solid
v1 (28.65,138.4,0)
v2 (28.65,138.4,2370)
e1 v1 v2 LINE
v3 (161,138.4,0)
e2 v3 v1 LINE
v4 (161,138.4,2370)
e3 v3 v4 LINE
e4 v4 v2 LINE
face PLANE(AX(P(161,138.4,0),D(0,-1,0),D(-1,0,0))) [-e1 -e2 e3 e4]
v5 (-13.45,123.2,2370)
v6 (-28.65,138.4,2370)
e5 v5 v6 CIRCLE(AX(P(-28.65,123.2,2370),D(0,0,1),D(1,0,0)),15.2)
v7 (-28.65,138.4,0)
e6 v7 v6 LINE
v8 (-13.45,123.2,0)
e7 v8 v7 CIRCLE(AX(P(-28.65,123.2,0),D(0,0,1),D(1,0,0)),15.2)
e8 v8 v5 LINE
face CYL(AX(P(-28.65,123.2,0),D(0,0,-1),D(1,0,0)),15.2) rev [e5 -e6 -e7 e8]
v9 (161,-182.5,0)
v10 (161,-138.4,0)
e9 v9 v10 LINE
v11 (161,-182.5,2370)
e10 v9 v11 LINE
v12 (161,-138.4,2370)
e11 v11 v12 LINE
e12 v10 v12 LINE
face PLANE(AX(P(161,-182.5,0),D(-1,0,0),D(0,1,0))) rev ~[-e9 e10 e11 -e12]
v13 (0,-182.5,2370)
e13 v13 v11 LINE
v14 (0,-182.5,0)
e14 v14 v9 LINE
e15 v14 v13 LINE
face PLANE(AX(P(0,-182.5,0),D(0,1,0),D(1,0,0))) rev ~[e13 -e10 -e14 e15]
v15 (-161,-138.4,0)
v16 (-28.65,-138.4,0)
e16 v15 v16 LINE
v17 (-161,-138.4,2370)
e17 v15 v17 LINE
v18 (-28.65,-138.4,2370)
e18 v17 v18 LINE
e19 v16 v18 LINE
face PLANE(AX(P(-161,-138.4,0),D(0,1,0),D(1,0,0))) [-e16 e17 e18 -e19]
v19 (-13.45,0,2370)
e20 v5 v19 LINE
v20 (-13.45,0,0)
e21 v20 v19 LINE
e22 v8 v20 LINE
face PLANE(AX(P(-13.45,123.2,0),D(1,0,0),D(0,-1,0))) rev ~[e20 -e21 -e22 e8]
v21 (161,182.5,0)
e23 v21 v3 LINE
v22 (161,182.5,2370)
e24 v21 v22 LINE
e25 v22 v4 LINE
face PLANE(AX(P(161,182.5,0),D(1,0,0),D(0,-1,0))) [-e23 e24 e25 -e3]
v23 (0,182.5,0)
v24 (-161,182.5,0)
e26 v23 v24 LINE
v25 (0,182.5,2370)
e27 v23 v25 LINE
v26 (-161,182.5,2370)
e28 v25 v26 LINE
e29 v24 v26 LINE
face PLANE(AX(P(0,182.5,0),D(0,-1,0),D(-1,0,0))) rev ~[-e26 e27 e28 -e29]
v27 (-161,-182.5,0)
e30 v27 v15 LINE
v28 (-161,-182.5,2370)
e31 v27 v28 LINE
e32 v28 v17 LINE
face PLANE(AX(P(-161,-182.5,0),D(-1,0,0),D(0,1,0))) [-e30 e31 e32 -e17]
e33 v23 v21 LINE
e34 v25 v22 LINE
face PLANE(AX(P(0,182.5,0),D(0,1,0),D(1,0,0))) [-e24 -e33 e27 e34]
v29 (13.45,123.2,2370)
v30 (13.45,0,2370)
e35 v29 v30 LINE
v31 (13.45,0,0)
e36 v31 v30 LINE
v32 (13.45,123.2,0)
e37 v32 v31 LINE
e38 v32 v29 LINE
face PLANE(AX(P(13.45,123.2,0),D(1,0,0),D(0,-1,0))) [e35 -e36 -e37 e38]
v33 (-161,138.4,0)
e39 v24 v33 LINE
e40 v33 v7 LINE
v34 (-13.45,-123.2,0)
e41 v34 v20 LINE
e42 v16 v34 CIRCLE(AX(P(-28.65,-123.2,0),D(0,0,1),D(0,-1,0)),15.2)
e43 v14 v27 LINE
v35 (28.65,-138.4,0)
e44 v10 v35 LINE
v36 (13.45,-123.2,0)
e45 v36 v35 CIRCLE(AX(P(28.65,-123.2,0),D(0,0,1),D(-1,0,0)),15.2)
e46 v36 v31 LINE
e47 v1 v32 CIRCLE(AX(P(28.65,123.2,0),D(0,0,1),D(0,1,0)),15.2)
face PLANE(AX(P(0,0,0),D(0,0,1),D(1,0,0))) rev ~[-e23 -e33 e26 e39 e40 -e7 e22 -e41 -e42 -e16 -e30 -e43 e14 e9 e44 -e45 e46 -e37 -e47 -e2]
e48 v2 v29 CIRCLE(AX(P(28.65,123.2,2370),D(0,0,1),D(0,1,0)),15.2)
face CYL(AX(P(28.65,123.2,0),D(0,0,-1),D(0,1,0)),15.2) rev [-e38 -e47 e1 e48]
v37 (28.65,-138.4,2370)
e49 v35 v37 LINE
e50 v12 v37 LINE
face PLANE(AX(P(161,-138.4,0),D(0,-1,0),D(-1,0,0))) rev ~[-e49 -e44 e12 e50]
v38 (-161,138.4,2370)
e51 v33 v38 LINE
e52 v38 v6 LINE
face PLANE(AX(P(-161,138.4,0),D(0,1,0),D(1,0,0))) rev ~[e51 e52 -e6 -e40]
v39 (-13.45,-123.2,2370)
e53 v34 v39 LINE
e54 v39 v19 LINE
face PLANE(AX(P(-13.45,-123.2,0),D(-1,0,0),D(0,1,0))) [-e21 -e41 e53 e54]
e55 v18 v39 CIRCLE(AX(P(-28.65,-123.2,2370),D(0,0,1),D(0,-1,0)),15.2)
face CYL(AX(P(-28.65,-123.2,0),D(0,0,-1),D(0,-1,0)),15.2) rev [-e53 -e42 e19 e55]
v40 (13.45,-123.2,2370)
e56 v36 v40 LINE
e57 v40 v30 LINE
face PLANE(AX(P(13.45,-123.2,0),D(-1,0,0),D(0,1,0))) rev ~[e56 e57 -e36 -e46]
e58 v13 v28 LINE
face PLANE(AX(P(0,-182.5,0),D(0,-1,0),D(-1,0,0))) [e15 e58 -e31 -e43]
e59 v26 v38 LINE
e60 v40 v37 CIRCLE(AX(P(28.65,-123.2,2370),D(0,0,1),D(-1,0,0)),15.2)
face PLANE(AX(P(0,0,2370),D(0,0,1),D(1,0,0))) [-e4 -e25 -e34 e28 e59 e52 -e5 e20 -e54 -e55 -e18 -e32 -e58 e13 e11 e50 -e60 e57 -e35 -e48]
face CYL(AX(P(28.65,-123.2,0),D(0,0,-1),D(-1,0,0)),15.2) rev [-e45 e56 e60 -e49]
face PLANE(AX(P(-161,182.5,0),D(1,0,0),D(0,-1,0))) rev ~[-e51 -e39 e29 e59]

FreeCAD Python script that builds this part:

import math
import FreeCAD as App
import Part
import Sketcher
from FreeCAD import Vector

doc = App.newDocument("Part")
body = doc.addObject("PartDesign::Body", "Body")

# Sketch on XY plane
sketch1 = body.newObject("Sketcher::SketchObject", "Sketch")
sketch1.AttachmentSupport = (doc.getObject("XY_Plane"), [""])
sketch1.MapMode = "FlatFace"
sketch1.addGeometry([
    Part.LineSegment(Vector(-161, -138, 0), Vector(-161, -182, 0)),  # 0
    Part.LineSegment(Vector(-161, -182, 0), Vector(161, -182, 0)),  # 1
    Part.LineSegment(Vector(161, -182, 0), Vector(161, -138, 0)),  # 2
    Part.LineSegment(Vector(161, -138, 0), Vector(29, -138, 0)),  # 3
    Part.ArcOfCircle(Part.Circle(Vector(29, -123, 0), Vector(0, 0, 1), 15), math.radians(180), math.radians(270)),  # 4
    Part.LineSegment(Vector(13, -123, 0), Vector(13, 123, 0)),  # 5
    Part.ArcOfCircle(Part.Circle(Vector(29, 123, 0), Vector(0, 0, 1), 15), math.radians(90), math.radians(180)),  # 6
    Part.LineSegment(Vector(29, 138, 0), Vector(161, 138, 0)),  # 7
    Part.LineSegment(Vector(161, 138, 0), Vector(161, 182, 0)),  # 8
    Part.LineSegment(Vector(161, 182, 0), Vector(-161, 182, 0)),  # 9
    Part.LineSegment(Vector(-161, 182, 0), Vector(-161, 138, 0)),  # 10
    Part.LineSegment(Vector(-161, 138, 0), Vector(-29, 138, 0)),  # 11
    Part.ArcOfCircle(Part.Circle(Vector(-29, 123, 0), Vector(0, 0, 1), 15), math.radians(0), math.radians(90)),  # 12
    Part.LineSegment(Vector(-13, 123, 0), Vector(-13, -123, 0)),  # 13
    Part.ArcOfCircle(Part.Circle(Vector(-29, -123, 0), Vector(0, 0, 1), 15), math.radians(-90), math.radians(0)),  # 14
    Part.LineSegment(Vector(-29, -138, 0), Vector(-161, -138, 0)),  # 15
], False)
sketch1.addConstraint([
    Sketcher.Constraint("Coincident", 0, 2, 1, 1),
    Sketcher.Constraint("Coincident", 1, 2, 2, 1),
    Sketcher.Constraint("Coincident", 2, 2, 3, 1),
    Sketcher.Constraint("Tangent", 3, 2, 4, 2),
    Sketcher.Constraint("Tangent", 4, 1, 5, 1),
    Sketcher.Constraint("Tangent", 5, 2, 6, 2),
    Sketcher.Constraint("Tangent", 6, 1, 7, 1),
    Sketcher.Constraint("Coincident", 7, 2, 8, 1),
    Sketcher.Constraint("Coincident", 8, 2, 9, 1),
    Sketcher.Constraint("Coincident", 9, 2, 10, 1),
    Sketcher.Constraint("Coincident", 10, 2, 11, 1),
    Sketcher.Constraint("Tangent", 11, 2, 12, 2),
    Sketcher.Constraint("Tangent", 12, 1, 13, 1),
    Sketcher.Constraint("Tangent", 13, 2, 14, 2),
    Sketcher.Constraint("Tangent", 14, 1, 15, 1),
    Sketcher.Constraint("Coincident", 15, 2, 0, 1),
    Sketcher.Constraint("Vertical", 0),
    Sketcher.Constraint("Horizontal", 1),
    Sketcher.Constraint("Vertical", 2),
    Sketcher.Constraint("Horizontal", 3),
    Sketcher.Constraint("Vertical", 5),
    Sketcher.Constraint("Horizontal", 7),
    Sketcher.Constraint("Vertical", 8),
    Sketcher.Constraint("Horizontal", 9),
    Sketcher.Constraint("Vertical", 10),
    Sketcher.Constraint("Horizontal", 11),
    Sketcher.Constraint("Vertical", 13),
    Sketcher.Constraint("Horizontal", 15),
    Sketcher.Constraint("Equal", 4, 6),
    Sketcher.Constraint("Equal", 6, 12),
    Sketcher.Constraint("Equal", 12, 14),
    Sketcher.Constraint("Symmetric", 4, 3, 12, 3, -1, 1),
    Sketcher.Constraint("Symmetric", 0, 2, 8, 2, -1, 1),
    Sketcher.Constraint("Symmetric", 7, 2, 10, 2, -2),
    Sketcher.Constraint("Symmetric", 2, 2, 15, 2, -2),
    Sketcher.Constraint("Radius", 4, 15.2),
    Sketcher.Constraint("DistanceY", 0, 2, 0, 1, 44.1),
    Sketcher.Constraint("DistanceX", 0, 2, -1, 1, 161.0),
    Sketcher.Constraint("DistanceY", 0, 2, -1, 1, 182.5),
    Sketcher.Constraint("DistanceX", -1, 1, 4, 1, 13.45),
])
pad1 = body.newObject("PartDesign::Pad", "Pad")
pad1.Profile = sketch1
pad1.Length = 2370

doc.recompute()
